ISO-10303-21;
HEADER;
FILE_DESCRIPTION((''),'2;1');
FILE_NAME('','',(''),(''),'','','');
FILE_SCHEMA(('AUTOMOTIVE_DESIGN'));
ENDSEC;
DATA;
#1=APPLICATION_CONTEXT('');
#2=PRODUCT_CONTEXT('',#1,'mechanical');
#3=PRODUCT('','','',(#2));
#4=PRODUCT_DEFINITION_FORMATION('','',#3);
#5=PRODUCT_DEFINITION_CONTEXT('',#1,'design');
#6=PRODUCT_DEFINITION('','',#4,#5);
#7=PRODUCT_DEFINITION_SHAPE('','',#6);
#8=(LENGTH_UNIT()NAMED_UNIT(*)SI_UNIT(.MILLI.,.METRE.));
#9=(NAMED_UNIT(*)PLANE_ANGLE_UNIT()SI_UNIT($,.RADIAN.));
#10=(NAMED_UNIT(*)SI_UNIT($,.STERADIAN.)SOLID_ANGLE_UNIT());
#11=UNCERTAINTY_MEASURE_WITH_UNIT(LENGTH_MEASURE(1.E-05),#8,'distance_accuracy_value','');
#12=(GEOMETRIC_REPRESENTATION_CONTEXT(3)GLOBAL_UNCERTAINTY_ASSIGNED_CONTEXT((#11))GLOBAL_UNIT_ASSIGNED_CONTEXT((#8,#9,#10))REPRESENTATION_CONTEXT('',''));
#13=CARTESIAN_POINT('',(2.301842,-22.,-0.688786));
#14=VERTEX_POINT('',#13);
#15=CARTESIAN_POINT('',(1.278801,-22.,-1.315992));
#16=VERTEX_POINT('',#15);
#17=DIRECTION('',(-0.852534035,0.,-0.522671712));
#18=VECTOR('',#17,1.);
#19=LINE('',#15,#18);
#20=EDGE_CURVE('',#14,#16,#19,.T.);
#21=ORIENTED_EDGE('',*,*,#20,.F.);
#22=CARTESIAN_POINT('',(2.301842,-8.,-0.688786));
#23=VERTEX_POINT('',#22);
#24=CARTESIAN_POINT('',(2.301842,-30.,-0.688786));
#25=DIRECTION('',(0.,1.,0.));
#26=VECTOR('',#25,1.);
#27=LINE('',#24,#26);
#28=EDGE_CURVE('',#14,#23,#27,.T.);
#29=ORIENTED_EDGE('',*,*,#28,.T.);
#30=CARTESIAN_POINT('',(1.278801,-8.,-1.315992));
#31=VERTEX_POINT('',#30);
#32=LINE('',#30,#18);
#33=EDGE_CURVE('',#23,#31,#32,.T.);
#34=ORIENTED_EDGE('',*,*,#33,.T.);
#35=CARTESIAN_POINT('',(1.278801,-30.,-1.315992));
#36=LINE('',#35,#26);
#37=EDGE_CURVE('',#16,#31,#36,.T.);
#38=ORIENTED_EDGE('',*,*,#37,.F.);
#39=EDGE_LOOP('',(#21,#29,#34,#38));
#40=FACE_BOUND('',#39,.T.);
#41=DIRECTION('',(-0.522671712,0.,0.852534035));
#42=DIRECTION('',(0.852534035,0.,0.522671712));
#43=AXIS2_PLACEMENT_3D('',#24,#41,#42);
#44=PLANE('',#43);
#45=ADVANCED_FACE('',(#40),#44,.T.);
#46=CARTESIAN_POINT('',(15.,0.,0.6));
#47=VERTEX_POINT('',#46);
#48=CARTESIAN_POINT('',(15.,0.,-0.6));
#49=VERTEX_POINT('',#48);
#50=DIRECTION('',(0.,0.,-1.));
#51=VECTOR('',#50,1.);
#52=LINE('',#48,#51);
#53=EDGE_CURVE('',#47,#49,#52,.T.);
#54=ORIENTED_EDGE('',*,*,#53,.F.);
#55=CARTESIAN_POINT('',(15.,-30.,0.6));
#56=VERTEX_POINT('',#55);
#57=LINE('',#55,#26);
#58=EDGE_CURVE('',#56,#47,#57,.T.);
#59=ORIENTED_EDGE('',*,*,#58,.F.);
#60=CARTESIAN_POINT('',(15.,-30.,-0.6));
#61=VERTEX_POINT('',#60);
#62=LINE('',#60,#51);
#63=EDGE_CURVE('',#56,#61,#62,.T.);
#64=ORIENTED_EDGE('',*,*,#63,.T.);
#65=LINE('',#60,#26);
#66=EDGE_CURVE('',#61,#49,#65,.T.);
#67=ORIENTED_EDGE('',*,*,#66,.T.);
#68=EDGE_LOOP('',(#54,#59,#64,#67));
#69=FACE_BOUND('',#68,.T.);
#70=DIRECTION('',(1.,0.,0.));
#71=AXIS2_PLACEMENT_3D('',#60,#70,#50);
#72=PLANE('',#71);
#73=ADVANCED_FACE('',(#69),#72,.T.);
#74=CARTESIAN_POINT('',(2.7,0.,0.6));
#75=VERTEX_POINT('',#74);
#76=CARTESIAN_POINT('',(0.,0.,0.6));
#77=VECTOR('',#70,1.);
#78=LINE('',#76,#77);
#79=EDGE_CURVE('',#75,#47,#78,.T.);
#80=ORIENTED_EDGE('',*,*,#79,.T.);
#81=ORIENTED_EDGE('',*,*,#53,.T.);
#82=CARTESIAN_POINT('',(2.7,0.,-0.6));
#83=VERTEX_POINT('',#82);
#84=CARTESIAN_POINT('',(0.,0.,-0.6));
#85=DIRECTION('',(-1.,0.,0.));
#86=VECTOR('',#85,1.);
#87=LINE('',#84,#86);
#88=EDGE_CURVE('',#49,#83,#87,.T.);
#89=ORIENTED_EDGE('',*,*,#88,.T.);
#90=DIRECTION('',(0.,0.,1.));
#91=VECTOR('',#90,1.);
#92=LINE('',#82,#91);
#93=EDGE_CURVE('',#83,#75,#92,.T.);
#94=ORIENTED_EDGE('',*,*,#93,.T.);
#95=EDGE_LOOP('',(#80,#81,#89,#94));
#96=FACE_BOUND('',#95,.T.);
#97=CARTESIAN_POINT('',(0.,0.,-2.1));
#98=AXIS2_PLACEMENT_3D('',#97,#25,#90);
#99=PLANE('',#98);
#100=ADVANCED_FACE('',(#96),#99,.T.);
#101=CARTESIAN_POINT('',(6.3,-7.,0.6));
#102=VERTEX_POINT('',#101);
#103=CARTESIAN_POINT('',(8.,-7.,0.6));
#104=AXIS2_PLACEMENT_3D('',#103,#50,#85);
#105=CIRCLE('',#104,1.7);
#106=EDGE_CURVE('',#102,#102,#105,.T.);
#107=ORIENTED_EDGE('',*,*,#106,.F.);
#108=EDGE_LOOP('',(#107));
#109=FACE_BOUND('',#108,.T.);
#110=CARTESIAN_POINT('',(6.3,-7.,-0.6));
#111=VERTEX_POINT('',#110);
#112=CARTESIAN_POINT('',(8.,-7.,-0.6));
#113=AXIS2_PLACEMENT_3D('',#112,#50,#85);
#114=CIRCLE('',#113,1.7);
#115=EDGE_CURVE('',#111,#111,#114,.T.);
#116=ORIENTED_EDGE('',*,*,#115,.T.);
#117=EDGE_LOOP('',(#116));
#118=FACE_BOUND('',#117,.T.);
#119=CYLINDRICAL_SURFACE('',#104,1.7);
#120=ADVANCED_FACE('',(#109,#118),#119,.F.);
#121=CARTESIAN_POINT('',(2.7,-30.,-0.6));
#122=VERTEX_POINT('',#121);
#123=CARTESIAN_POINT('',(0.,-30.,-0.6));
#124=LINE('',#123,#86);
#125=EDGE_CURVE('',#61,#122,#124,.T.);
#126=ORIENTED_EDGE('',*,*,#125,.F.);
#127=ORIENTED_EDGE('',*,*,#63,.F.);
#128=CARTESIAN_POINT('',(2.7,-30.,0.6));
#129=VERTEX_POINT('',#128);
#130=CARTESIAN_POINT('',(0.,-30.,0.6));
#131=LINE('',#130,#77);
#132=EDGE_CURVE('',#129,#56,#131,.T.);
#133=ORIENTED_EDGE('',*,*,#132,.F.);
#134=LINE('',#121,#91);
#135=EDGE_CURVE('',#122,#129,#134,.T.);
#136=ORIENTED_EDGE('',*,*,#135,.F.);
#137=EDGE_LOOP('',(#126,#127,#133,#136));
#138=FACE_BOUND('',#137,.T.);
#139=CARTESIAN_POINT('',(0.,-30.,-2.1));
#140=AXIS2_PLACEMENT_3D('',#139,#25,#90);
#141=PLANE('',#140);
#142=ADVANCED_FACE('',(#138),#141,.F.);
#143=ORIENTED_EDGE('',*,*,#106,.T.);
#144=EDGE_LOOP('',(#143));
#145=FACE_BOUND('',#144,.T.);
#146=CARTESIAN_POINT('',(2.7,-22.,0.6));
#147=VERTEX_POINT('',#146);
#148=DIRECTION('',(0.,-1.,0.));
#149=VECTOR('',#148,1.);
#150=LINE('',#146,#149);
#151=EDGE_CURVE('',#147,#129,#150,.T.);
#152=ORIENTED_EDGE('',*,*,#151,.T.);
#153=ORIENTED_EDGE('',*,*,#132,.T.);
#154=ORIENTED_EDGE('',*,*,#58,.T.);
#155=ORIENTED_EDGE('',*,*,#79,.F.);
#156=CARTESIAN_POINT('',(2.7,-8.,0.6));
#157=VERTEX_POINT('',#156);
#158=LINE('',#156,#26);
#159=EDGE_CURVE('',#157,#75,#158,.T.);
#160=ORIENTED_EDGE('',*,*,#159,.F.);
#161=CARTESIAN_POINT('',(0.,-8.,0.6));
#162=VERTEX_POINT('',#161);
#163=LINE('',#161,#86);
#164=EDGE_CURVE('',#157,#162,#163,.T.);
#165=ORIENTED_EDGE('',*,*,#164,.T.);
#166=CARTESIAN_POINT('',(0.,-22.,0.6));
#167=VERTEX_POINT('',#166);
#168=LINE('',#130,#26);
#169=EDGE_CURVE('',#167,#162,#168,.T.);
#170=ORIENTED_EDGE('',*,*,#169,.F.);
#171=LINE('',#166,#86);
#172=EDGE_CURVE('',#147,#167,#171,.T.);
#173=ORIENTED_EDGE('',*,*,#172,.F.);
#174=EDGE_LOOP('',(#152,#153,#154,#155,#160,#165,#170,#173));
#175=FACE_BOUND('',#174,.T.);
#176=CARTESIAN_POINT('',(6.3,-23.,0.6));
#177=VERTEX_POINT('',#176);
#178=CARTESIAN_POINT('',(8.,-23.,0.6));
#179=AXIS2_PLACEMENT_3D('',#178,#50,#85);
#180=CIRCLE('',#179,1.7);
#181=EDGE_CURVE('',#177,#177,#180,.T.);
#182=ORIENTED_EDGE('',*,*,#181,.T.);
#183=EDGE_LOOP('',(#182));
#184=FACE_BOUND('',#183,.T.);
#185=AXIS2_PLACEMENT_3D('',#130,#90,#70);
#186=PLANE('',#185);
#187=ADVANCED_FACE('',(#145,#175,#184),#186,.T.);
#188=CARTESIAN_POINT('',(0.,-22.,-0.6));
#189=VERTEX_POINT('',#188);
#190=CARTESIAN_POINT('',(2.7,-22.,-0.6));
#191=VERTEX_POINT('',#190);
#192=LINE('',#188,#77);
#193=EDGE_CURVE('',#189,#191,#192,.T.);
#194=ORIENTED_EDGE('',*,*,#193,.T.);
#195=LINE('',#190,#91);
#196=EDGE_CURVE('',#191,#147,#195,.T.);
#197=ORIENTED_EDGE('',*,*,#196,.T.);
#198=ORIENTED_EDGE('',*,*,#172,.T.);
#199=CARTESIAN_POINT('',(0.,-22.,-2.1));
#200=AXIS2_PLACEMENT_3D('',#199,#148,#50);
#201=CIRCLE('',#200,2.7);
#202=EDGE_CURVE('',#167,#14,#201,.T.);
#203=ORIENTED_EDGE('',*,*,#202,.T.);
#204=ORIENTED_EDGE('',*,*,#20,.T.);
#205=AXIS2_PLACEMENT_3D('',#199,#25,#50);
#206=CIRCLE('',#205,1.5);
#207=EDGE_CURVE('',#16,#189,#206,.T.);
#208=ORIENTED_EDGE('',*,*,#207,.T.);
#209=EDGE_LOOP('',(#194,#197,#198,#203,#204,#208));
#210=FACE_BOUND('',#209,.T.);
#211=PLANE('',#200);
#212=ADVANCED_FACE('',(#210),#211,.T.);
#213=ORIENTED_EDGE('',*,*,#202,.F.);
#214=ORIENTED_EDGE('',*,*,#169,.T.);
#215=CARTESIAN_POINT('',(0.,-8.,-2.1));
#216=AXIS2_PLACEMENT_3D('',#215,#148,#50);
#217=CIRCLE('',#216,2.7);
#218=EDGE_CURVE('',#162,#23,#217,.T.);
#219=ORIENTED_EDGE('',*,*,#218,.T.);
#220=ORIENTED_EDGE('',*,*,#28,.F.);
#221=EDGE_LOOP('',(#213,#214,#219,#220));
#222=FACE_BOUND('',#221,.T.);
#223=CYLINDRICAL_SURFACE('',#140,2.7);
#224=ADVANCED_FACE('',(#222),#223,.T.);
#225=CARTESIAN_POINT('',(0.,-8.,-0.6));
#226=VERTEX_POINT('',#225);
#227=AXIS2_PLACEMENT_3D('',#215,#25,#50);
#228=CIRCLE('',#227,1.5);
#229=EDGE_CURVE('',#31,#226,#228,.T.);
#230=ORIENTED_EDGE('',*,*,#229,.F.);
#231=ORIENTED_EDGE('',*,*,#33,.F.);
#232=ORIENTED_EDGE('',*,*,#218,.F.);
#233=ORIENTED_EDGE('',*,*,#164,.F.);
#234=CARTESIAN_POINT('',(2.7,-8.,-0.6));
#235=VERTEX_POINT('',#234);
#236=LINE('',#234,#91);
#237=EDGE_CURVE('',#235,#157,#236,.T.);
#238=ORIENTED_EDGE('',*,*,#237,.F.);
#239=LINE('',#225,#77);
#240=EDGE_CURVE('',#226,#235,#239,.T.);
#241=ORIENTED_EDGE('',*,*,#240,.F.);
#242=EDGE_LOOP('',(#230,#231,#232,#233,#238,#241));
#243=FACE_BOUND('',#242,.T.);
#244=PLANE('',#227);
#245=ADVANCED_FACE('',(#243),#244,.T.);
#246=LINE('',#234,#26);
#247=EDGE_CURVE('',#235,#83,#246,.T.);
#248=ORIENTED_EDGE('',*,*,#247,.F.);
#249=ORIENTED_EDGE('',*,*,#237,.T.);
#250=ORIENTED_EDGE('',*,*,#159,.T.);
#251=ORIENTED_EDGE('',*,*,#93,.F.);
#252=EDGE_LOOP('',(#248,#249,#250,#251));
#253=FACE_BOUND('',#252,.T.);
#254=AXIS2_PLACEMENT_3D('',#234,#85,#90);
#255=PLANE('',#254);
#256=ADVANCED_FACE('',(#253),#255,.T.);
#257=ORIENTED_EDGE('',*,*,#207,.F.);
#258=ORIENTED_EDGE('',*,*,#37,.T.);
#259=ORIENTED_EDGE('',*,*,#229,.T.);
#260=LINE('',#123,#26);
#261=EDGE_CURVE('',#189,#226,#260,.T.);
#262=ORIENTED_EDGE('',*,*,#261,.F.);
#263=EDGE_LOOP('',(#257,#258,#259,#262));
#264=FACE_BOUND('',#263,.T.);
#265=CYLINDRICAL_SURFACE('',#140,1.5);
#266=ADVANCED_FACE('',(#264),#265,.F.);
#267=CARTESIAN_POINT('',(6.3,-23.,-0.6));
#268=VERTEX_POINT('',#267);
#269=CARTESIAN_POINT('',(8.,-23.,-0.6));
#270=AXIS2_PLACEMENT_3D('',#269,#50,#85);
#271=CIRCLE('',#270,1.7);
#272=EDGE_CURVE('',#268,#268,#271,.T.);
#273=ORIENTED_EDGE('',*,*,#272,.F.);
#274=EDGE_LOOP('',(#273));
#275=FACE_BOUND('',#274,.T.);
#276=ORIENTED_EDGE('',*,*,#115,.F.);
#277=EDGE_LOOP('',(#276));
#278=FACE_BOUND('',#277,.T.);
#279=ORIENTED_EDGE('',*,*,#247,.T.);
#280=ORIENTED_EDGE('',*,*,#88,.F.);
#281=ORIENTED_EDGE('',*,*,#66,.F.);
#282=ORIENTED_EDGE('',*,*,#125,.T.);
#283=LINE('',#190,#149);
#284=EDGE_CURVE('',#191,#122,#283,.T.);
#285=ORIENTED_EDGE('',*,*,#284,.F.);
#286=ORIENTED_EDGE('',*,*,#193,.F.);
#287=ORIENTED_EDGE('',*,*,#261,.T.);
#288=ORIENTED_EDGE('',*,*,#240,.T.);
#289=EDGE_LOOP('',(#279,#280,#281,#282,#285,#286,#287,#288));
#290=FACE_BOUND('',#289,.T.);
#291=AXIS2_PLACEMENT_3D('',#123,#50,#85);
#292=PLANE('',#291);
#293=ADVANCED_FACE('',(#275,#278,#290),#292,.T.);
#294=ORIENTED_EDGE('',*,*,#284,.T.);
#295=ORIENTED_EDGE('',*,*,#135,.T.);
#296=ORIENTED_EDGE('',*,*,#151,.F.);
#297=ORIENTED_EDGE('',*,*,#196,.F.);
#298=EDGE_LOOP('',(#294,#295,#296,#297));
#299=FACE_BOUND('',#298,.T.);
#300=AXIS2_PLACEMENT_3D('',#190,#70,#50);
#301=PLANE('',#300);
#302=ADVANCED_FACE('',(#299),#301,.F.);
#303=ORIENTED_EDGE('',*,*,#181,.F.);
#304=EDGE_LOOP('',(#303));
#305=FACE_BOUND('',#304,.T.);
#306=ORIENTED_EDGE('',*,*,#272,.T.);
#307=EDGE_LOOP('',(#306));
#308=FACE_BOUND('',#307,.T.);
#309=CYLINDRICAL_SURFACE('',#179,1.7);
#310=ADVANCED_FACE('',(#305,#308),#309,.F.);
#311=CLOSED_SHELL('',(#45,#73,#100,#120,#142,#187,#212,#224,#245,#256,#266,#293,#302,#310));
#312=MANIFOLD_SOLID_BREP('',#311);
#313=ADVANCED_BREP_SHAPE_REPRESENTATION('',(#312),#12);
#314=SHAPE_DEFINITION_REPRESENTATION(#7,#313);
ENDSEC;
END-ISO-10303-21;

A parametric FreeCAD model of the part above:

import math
import FreeCAD as App
import Part
import Sketcher

V = App.Vector
Q = App.Units.Quantity

doc = App.newDocument("Part")
body = doc.addObject("PartDesign::Body", "Body")

# Sketch on XZ plane
sketch1 = body.newObject("Sketcher::SketchObject", "Sketch")
sketch1.AttachmentSupport = (doc.getObject("XZ_Plane"), [""])
sketch1.MapMode = "FlatFace"
sketch1.addGeometry([
    Part.LineSegment(V(15, -0.6, 0), V(0, -0.6, 0)),  # 0
    Part.ArcOfCircle(Part.Circle(V(0, -2.1, 0), V(0, 0, 1), 1.5), math.radians(90), math.radians(392)),  # 1
    Part.LineSegment(V(1.3, -1.3, 0), V(2.3, -0.7, 0)),  # 2
    Part.ArcOfCircle(Part.Circle(V(0, -2.1, 0), V(0, 0, 1), 2.7), math.radians(90), math.radians(392)),  # 3
    Part.LineSegment(V(0, 0.6, 0), V(15, 0.6, 0)),  # 4
    Part.LineSegment(V(15, 0.6, 0), V(15, -0.6, 0)),  # 5
], False)
sketch1.addConstraint([
    Sketcher.Constraint("Tangent", 0, 2, 1, 1),
    Sketcher.Constraint("Coincident", 1, 2, 2, 1),
    Sketcher.Constraint("Coincident", 2, 2, 3, 2),
    Sketcher.Constraint("Tangent", 3, 1, 4, 1),
    Sketcher.Constraint("Coincident", 4, 2, 5, 1),
    Sketcher.Constraint("Coincident", 5, 2, 0, 1),
    Sketcher.Constraint("Horizontal", 0),
    Sketcher.Constraint("Horizontal", 4),
    Sketcher.Constraint("Vertical", 5),
    Sketcher.Constraint("Coincident", 3, 3, 1, 3),
    Sketcher.Constraint("Symmetric", 0, 2, 3, 1, -1, 1),
    Sketcher.Constraint("Radius", 1, Q("1.5 mm")),
    Sketcher.Constraint("Radius", 3, Q("2.7 mm")),
    Sketcher.Constraint("DistanceX", 0, 2, 0, 1, Q("15 mm")),
    Sketcher.Constraint("DistanceX", -1, 1, 1, 2, Q("1.278801 mm")),
    Sketcher.Constraint("DistanceX", -1, 1, 2, 2, Q("2.301842 mm")),
])
pad1 = body.newObject("PartDesign::Pad", "Pad")
pad1.Profile = sketch1
pad1.Length = 30

# Sketch on XZ plane
sketch2 = body.newObject("Sketcher::SketchObject", "Sketch001")
sketch2.AttachmentSupport = (doc.getObject("XZ_Plane"), [""])
sketch2.MapMode = "FlatFace"
sketch2.AttachmentOffset = App.Placement(V(0, 0, 22), App.Rotation())
sketch2.addGeometry([
    Part.LineSegment(V(2.3, -0.7, 0), V(1.3, -1.3, 0)),  # 0
    Part.ArcOfCircle(Part.Circle(V(0, -2.1, 0), V(0, 0, 1), 1.5), math.radians(90), math.radians(392)),  # 1
    Part.LineSegment(V(0, -0.6, 0), V(2.7, -0.6, 0)),  # 2
    Part.LineSegment(V(2.7, -0.6, 0), V(2.7, 0.6, 0)),  # 3
    Part.LineSegment(V(2.7, 0.6, 0), V(0, 0.6, 0)),  # 4
    Part.ArcOfCircle(Part.Circle(V(0, -2.1, 0), V(0, 0, 1), 2.7), math.radians(90), math.radians(392)),  # 5
], False)
sketch2.addConstraint([
    Sketcher.Constraint("Coincident", 0, 2, 1, 2),
    Sketcher.Constraint("Tangent", 1, 1, 2, 1),
    Sketcher.Constraint("Coincident", 2, 2, 3, 1),
    Sketcher.Constraint("Coincident", 3, 2, 4, 1),
    Sketcher.Constraint("Tangent", 4, 2, 5, 1),
    Sketcher.Constraint("Coincident", 5, 2, 0, 1),
    Sketcher.Constraint("Horizontal", 2),
    Sketcher.Constraint("Vertical", 3),
    Sketcher.Constraint("Horizontal", 4),
    Sketcher.Constraint("Coincident", 5, 3, 1, 3),
    Sketcher.Constraint("Symmetric", 1, 1, 4, 2, -1, 1),
    Sketcher.Constraint("Radius", 1, Q("1.5 mm")),
    Sketcher.Constraint("Radius", 5, Q("2.7 mm")),
    Sketcher.Constraint("DistanceX", 2, 1, 2, 2, Q("2.7 mm")),
    Sketcher.Constraint("DistanceX", -1, 1, 0, 2, Q("1.278801 mm")),
    Sketcher.Constraint("DistanceX", -1, 1, 5, 2, Q("2.301842 mm")),
])
pocket1 = body.newObject("PartDesign::Pocket", "Pocket")
pocket1.Profile = sketch2
pocket1.Length = 8
pocket1.Reversed = True

# Sketch on XY plane
sketch3 = body.newObject("Sketcher::SketchObject", "Sketch002")
sketch3.AttachmentSupport = (doc.getObject("XY_Plane"), [""])
sketch3.MapMode = "FlatFace"
sketch3.AttachmentOffset = App.Placement(V(0, 0, -0.6), App.Rotation())
sketch3.addGeometry([
    Part.Circle(V(8, -23, 0), V(0, 0, 1), 1.7),
    Part.Circle(V(8, -7, 0), V(0, 0, 1), 1.7),
], False)
sketch3.addConstraint([
    Sketcher.Constraint("Equal", 0, 1),
    Sketcher.Constraint("Vertical", 0, 3, 1, 3),
    Sketcher.Constraint("Diameter", 0, Q("3.4 mm")),
    Sketcher.Constraint("DistanceX", -1, 1, 0, 3, Q("8 mm")),
    Sketcher.Constraint("DistanceY", 0, 3, -1, 1, Q("23 mm")),
    Sketcher.Constraint("DistanceY", 1, 3, -1, 1, Q("7 mm")),
])
pocket2 = body.newObject("PartDesign::Pocket", "Pocket001")
pocket2.Profile = sketch3
pocket2.Length = 1.2
pocket2.Reversed = True
doc.recompute()

datumplane = body.newObject("PartDesign::Plane", "DatumPlane")
datumplane.AttachmentSupport = (doc.getObject("XZ_Plane"), [""])
datumplane.MapMode = "FlatFace"
datumplane.AttachmentOffset = App.Placement(V(0, 0, 15), App.Rotation())
mirrored = body.newObject("PartDesign::Mirrored", "Mirrored")
mirrored.Originals = [pocket1]
mirrored.MirrorPlane = (datumplane, [""])
body.Tip = mirrored

doc.recompute()
